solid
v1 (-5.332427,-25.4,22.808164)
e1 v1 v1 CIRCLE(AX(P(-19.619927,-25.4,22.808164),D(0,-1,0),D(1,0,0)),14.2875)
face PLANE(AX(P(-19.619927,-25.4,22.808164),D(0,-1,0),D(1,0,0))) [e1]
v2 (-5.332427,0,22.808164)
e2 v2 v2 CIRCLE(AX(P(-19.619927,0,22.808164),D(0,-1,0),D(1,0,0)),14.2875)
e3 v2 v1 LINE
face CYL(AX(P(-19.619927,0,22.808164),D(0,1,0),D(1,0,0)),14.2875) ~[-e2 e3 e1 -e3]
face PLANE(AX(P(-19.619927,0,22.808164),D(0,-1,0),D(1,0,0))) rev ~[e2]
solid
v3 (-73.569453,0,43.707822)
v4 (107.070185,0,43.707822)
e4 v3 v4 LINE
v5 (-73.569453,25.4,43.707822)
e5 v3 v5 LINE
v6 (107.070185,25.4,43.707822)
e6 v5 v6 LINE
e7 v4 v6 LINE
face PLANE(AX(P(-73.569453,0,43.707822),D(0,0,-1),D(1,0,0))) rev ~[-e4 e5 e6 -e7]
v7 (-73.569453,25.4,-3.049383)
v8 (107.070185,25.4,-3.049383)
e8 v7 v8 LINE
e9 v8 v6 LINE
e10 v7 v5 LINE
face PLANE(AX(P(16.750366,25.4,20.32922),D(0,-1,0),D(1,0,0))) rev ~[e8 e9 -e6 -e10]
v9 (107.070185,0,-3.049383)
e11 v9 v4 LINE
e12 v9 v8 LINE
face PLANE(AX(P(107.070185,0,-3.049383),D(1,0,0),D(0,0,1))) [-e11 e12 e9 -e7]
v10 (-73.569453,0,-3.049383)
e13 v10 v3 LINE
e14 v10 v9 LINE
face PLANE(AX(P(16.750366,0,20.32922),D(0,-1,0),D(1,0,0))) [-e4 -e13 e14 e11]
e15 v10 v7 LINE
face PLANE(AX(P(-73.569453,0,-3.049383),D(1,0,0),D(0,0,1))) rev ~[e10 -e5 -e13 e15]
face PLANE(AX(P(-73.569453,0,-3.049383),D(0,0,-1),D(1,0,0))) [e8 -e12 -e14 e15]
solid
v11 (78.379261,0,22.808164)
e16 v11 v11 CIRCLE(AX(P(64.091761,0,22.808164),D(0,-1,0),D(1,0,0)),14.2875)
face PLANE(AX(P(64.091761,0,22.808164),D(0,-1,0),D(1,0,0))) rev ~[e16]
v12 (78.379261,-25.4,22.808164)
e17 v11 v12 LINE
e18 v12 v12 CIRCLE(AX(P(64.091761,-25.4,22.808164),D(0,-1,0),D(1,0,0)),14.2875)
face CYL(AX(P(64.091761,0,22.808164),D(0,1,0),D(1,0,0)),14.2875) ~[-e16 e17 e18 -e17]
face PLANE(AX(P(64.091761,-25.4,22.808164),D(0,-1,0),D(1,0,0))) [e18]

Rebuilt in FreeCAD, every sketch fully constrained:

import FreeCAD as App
import Part
import Sketcher
from FreeCAD import Vector
Q = App.Units.Quantity


def add_polygon(sketch, points):
    """Adds a closed chain of lines whose ends are joined by coincident constraints."""
    first, n = sketch.GeometryCount, len(points)
    for a, b in zip(points, points[1:] + points[:1]):
        sketch.addGeometry(Part.LineSegment(App.Vector(*a, 0), App.Vector(*b, 0)), False)
    for i in range(n):
        sketch.addConstraint(Sketcher.Constraint("Coincident", first + i, 2, first + (i + 1) % n, 1))

doc = App.newDocument("Part")
body = doc.addObject("PartDesign::Body", "Body")
body.AllowCompound = True

sketch1 = doc.addObject("Sketcher::SketchObject", "Sketch")
body.addObject(sketch1)
sketch1.AttachmentSupport = (doc.XZ_Plane, [""])
sketch1.MapMode = "FlatFace"
sketch1.addGeometry([
    Part.Circle(Vector(-19.619927, 22.808164, 0), Vector(0, 0, 1), 14.2875),
    Part.Circle(Vector(64.091761, 22.808164, 0), Vector(0, 0, 1), 14.2875),
], False)
sketch1.addConstraint([
    Sketcher.Constraint("Equal", 0, 1),
    Sketcher.Constraint("Horizontal", 0, 3, 1, 3),
    Sketcher.Constraint("Diameter", 0, Q("1.125 in")),
    Sketcher.Constraint("DistanceX", -1, 1, 1, 3, 64.091761),
    Sketcher.Constraint("DistanceX", 0, 3, 1, 3, 83.711688),
    Sketcher.Constraint("DistanceY", -1, 1, 0, 3, 22.808164),
])
pad1 = doc.addObject("PartDesign::Pad", "Pad")
body.addObject(pad1)
pad1.Profile = sketch1
pad1.Length = Q("1 in")
body2 = doc.addObject("PartDesign::Body", "Body001")

sketch2 = doc.addObject("Sketcher::SketchObject", "Sketch001")
body2.addObject(sketch2)
sketch2.AttachmentSupport = (doc.getObject("XZ_Plane001"), [""])
sketch2.MapMode = "FlatFace"
add_polygon(sketch2, [(-73.569453, 43.707822), (-73.569453, -3.049383), (107.070185, -3.049383), (107.070185, 43.707822)])
sketch2.addConstraint([
    Sketcher.Constraint("Vertical", 0),
    Sketcher.Constraint("Horizontal", 1),
    Sketcher.Constraint("Vertical", 2),
    Sketcher.Constraint("Horizontal", 3),
    Sketcher.Constraint("DistanceX", 1, 1, 1, 2, 180.639639),
    Sketcher.Constraint("DistanceY", 0, 2, 0, 1, 46.757205),
    Sketcher.Constraint("DistanceX", 0, 2, -1, 1, 73.569453),
    Sketcher.Constraint("DistanceY", 0, 2, -1, 1, 3.049383),
])
pad2 = doc.addObject("PartDesign::Pad", "Pad001")
body2.addObject(pad2)
pad2.Profile = sketch2
pad2.Length = Q("1 in")
pad2.Reversed = True

doc.recompute()
